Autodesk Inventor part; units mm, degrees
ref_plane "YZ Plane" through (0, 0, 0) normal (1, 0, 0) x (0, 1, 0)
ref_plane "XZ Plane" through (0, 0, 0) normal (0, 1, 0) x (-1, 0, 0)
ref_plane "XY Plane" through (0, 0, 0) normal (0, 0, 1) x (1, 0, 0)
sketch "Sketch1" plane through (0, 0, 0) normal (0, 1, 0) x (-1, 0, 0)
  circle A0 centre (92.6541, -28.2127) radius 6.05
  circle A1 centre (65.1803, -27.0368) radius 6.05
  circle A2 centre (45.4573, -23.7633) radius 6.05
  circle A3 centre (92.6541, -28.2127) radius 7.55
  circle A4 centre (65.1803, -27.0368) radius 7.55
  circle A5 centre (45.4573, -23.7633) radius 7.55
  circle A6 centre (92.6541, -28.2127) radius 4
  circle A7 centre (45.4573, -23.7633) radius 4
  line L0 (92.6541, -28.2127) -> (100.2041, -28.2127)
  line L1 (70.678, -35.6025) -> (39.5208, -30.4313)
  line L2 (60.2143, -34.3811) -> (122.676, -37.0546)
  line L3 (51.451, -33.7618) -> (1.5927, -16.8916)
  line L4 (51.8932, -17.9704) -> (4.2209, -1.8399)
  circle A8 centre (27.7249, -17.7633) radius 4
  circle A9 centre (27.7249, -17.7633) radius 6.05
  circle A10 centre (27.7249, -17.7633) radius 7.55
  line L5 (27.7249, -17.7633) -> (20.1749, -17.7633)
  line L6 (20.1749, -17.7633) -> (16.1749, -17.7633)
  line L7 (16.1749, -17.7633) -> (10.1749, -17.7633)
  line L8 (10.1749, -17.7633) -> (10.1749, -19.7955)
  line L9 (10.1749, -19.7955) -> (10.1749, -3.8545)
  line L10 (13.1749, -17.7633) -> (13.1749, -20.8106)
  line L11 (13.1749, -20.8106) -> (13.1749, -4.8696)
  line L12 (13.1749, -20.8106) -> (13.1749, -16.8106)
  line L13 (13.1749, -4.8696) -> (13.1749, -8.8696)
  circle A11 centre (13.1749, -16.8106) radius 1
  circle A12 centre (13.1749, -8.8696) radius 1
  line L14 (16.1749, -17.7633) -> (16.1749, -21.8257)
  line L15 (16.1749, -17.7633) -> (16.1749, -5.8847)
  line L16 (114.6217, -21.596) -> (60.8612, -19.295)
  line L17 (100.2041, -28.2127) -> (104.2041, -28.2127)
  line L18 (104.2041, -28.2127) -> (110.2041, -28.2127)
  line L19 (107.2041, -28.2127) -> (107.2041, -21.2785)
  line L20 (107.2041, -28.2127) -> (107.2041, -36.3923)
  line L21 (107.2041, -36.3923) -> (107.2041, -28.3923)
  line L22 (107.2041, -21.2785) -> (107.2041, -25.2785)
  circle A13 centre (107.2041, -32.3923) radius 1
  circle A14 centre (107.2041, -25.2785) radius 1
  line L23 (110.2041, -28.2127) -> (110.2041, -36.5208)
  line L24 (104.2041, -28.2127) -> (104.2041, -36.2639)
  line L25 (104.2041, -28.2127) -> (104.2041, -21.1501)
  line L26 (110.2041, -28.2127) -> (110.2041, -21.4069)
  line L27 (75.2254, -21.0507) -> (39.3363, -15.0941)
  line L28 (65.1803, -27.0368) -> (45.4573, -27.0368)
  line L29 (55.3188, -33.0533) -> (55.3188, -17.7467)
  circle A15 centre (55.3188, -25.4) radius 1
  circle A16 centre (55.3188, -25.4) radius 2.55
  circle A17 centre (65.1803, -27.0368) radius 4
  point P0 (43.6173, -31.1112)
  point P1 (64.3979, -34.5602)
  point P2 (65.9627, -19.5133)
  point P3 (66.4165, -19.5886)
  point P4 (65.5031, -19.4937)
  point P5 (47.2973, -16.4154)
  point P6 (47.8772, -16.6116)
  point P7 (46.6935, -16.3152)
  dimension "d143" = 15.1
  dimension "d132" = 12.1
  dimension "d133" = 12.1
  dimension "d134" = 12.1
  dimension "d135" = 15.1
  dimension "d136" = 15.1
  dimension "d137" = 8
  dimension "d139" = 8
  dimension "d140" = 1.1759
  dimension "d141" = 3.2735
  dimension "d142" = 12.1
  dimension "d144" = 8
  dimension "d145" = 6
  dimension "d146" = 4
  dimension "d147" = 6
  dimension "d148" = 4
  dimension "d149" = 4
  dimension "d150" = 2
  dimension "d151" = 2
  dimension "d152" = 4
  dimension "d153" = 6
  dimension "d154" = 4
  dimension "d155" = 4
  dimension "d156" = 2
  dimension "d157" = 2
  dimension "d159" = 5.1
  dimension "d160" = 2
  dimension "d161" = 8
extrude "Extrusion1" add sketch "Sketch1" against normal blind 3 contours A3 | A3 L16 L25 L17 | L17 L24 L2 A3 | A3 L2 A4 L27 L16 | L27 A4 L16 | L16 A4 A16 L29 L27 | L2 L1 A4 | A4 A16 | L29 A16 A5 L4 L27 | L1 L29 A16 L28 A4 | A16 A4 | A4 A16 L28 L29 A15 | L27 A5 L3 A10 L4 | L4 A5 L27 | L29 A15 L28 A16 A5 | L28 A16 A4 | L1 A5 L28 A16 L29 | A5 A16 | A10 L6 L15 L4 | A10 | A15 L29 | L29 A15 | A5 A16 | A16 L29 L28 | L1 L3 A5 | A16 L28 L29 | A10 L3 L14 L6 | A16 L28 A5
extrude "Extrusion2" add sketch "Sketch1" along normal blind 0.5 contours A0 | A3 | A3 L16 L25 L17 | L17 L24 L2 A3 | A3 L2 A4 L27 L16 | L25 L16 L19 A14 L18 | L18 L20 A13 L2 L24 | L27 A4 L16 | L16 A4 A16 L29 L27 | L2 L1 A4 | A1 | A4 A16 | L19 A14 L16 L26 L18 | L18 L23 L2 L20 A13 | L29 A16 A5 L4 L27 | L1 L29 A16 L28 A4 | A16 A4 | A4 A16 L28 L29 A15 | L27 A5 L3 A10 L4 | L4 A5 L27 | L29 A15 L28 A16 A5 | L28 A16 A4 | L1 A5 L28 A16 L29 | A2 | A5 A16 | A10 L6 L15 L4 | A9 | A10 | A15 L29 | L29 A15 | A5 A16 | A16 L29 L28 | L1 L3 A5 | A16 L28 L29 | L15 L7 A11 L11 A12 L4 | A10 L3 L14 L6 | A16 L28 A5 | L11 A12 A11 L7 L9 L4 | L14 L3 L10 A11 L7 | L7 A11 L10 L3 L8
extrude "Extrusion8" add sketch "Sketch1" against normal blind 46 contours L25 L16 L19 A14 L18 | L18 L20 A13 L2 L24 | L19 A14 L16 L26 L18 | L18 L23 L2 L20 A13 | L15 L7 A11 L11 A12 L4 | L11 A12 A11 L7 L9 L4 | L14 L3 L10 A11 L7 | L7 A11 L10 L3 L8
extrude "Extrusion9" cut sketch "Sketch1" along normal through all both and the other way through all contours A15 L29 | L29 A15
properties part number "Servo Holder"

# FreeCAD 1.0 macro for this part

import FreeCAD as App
import Part
import Sketcher
Q = App.Units.Quantity


def add_polygon(sketch, points):
    """Adds a closed chain of lines whose ends are joined by coincident constraints."""
    first, n = sketch.GeometryCount, len(points)
    for a, b in zip(points, points[1:] + points[:1]):
        sketch.addGeometry(Part.LineSegment(App.Vector(*a, 0), App.Vector(*b, 0)), False)
    for i in range(n):
        sketch.addConstraint(Sketcher.Constraint("Coincident", first + i, 2, first + (i + 1) % n, 1))

doc = App.newDocument("Part")
body = doc.addObject("PartDesign::Body", "Body")

sketch1 = body.newObject("Sketcher::SketchObject", "Sketch")
sketch1.AttachmentSupport = (doc.getObject("XZ_Plane"), [""])
sketch1.MapMode = "FlatFace"
add_polygon(sketch1, [(-104, -36), (-104, -21), (-66, -20), (-47, -16), (-16, -6), (-16, -22), (-44, -31), (-64, -35)])
sketch1.addGeometry(Part.Circle(App.Vector(-93, -28, 0), App.Vector(0, 0, 1), 6), False)
sketch1.addGeometry(Part.Circle(App.Vector(-65, -27, 0), App.Vector(0, 0, 1), 6), False)
sketch1.addGeometry(Part.Circle(App.Vector(-45, -24, 0), App.Vector(0, 0, 1), 6), False)
sketch1.addGeometry(Part.Circle(App.Vector(-28, -18, 0), App.Vector(0, 0, 1), 6), False)
sketch1.addConstraint(Sketcher.Constraint("Vertical", 0))
sketch1.addConstraint(Sketcher.Constraint("Vertical", 4))
sketch1.addConstraint(Sketcher.Constraint("Equal", 8, 9))
sketch1.addConstraint(Sketcher.Constraint("Equal", 9, 10))
sketch1.addConstraint(Sketcher.Constraint("Equal", 10, 11))
sketch1.addConstraint(Sketcher.Constraint("Parallel", 3, 5))
sketch1.addConstraint(Sketcher.Constraint("Parallel", 2, 6))
sketch1.addConstraint(Sketcher.Constraint("Parallel", 1, 7))
sketch1.addConstraint(Sketcher.Constraint("Diameter", 8, 12.1))
sketch1.addConstraint(Sketcher.Constraint("DistanceY", 10, 3, 11, 3, 6.0))
sketch1.addConstraint(Sketcher.Constraint("DistanceY", 8, 3, 9, 3, 1.176))
sketch1.addConstraint(Sketcher.Constraint("Angle", 1, Q("2.4508 deg")))
sketch1.addConstraint(Sketcher.Constraint("DistanceY", 9, 3, 10, 3, 3.2735))
sketch1.addConstraint(Sketcher.Constraint("DistanceX", 6, 2, 2, 2, 17.1))
sketch1.addConstraint(Sketcher.Constraint("DistanceY", 4, 2, 4, 1, 15.941))
sketch1.addConstraint(Sketcher.Constraint("DistanceY", 0, 2, -1, 1, 21.15))
sketch1.addConstraint(Sketcher.Constraint("DistanceX", 0, 2, 8, 3, 11.55))
sketch1.addConstraint(Sketcher.Constraint("DistanceY", 10, 3, 1, 2, 4.25))
sketch1.addConstraint(Sketcher.Constraint("DistanceX", 11, 3, 3, 2, 11.55))
sketch1.addConstraint(Sketcher.Constraint("Distance", 5, 28.971))
sketch1.addConstraint(Sketcher.Constraint("DistanceY", 0, 1, 0, 2, 15.1138))
sketch1.addConstraint(Sketcher.Constraint("DistanceX", 8, 3, -1, 1, 92.654))
sketch1.addConstraint(Sketcher.Constraint("DistanceX", 11, 3, -1, 1, 27.725))
sketch1.addConstraint(Sketcher.Constraint("DistanceX", 9, 3, 10, 3, 19.723))
sketch1.addConstraint(Sketcher.Constraint("DistanceX", 1, 2, 2, 2, 18.665))
sketch1.addConstraint(Sketcher.Constraint("DistanceX", 2, 2, 11, 3, 19.573))
sketch1.addConstraint(Sketcher.Constraint("DistanceY", 9, 3, 3, 2, 21.152))
sketch1.addConstraint(Sketcher.Constraint("DistanceX", 9, 3, -1, 1, 65.1803))
pad1 = body.newObject("PartDesign::Pad", "Pad")
pad1.Profile = sketch1
pad1.Length = 3

sketch2 = body.newObject("Sketcher::SketchObject", "Sketch001")
sketch2.AttachmentSupport = (doc.getObject("XZ_Plane"), [""])
sketch2.MapMode = "FlatFace"
add_polygon(sketch2, [(-110.2041, -36.5208), (-110.2041, -21.4069), (-65.962712, -19.51335), (-47.297791, -16.415488), (-10.1749, -3.8545), (-10.1749, -19.7955), (-43.617503, -31.111235), (-64.397767, -34.560162)])
sketch2.addGeometry(Part.Circle(App.Vector(-92.6541, -28.2127, 0), App.Vector(0, 0, 1), 4), False)
sketch2.addGeometry(Part.Circle(App.Vector(-107.2041, -32.3923, 0), App.Vector(0, 0, 1), 1), False)
sketch2.addGeometry(Part.Circle(App.Vector(-107.2041, -25.2785, 0), App.Vector(0, 0, 1), 1), False)
sketch2.addGeometry(Part.Circle(App.Vector(-65.1803, -27.0368, 0), App.Vector(0, 0, 1), 4), False)
sketch2.addGeometry(Part.Circle(App.Vector(-45.4573, -23.7633, 0), App.Vector(0, 0, 1), 4), False)
sketch2.addGeometry(Part.Circle(App.Vector(-27.7249, -17.7633, 0), App.Vector(0, 0, 1), 4), False)
sketch2.addGeometry(Part.Circle(App.Vector(-13.1749, -16.8106, 0), App.Vector(0, 0, 1), 1), False)
sketch2.addGeometry(Part.Circle(App.Vector(-13.1749, -8.8696, 0), App.Vector(0, 0, 1), 1), False)
sketch2.addConstraint(Sketcher.Constraint("Vertical", 0))
sketch2.addConstraint(Sketcher.Constraint("Vertical", 4))
sketch2.addConstraint(Sketcher.Constraint("Diameter", 8, 8.0))
sketch2.addConstraint(Sketcher.Constraint("Diameter", 9, 2.0))
sketch2.addConstraint(Sketcher.Constraint("Diameter", 10, 2.0))
sketch2.addConstraint(Sketcher.Constraint("Diameter", 11, 8.0))
sketch2.addConstraint(Sketcher.Constraint("Diameter", 12, 8.0))
sketch2.addConstraint(Sketcher.Constraint("Diameter", 13, 8.0))
sketch2.addConstraint(Sketcher.Constraint("Diameter", 14, 2.0))
sketch2.addConstraint(Sketcher.Constraint("Diameter", 15, 2.0))
sketch2.addConstraint(Sketcher.Constraint("DistanceY", 12, 3, 13, 3, 6.0))
sketch2.addConstraint(Sketcher.Constraint("DistanceY", 8, 3, 11, 3, 1.176))
sketch2.addConstraint(Sketcher.Constraint("DistanceX", 0, 2, 10, 3, 3.0))
sketch2.addConstraint(Sketcher.Constraint("DistanceX", 0, 2, 9, 3, 3.0))
sketch2.addConstraint(Sketcher.Constraint("DistanceX", 15, 3, 3, 2, 3.0))
sketch2.addConstraint(Sketcher.Constraint("DistanceX", 14, 3, 3, 2, 3.0))
sketch2.addConstraint(Sketcher.Constraint("DistanceY", 11, 3, 12, 3, 3.2735))
sketch2.addConstraint(Sketcher.Constraint("DistanceX", 6, 2, 2, 2, 17.1))
sketch2.addConstraint(Sketcher.Constraint("DistanceY", 0, 1, 0, 2, 15.114))
sketch2.addConstraint(Sketcher.Constraint("DistanceY", 4, 2, 4, 1, 15.941))
sketch2.addConstraint(Sketcher.Constraint("DistanceX", 9, 3, 8, 3, 14.55))
sketch2.addConstraint(Sketcher.Constraint("DistanceX", 13, 3, 14, 3, 14.55))
sketch2.addConstraint(Sketcher.Constraint("DistanceY", 11, 3, 0, 2, 5.63))
sketch2.addConstraint(Sketcher.Constraint("DistanceY", 12, 3, 1, 2, 4.25))
sketch2.addConstraint(Sketcher.Constraint("Distance", 1, 44.282))
sketch2.addConstraint(Sketcher.Constraint("DistanceX", 8, 3, -1, 1, 92.654))
sketch2.addConstraint(Sketcher.Constraint("DistanceX", 13, 3, -1, 1, 27.725))
sketch2.addConstraint(Sketcher.Constraint("DistanceY", 0, 2, -1, 1, 21.407))
sketch2.addConstraint(Sketcher.Constraint("DistanceX", 11, 3, 12, 3, 19.723))
sketch2.addConstraint(Sketcher.Constraint("DistanceY", 9, 3, 12, 3, 8.629))
sketch2.addConstraint(Sketcher.Constraint("DistanceY", 8, 3, 14, 3, 11.402))
sketch2.addConstraint(Sketcher.Constraint("DistanceY", 10, 3, 14, 3, 8.468))
sketch2.addConstraint(Sketcher.Constraint("DistanceY", 14, 3, 15, 3, 7.941))
sketch2.addConstraint(Sketcher.Constraint("DistanceX", 1, 2, 2, 2, 18.665))
sketch2.addConstraint(Sketcher.Constraint("DistanceY", 14, 3, 2, 2, 0.395))
sketch2.addConstraint(Sketcher.Constraint("DistanceY", 15, 3, 3, 2, 5.015))
sketch2.addConstraint(Sketcher.Constraint("DistanceY", 5, 2, 12, 3, 7.348))
sketch2.addConstraint(Sketcher.Constraint("DistanceY", 6, 2, 5, 2, 3.449))
sketch2.addConstraint(Sketcher.Constraint("Distance", 5, 35.3051))
sketch2.addConstraint(Sketcher.Constraint("DistanceX", 11, 3, -1, 1, 65.1803))
pad2 = body.newObject("PartDesign::Pad", "Pad001")
pad2.Profile = sketch2
pad2.Length = 0.5
pad2.Reversed = True

sketch3 = body.newObject("Sketcher::SketchObject", "Sketch002")
sketch3.AttachmentSupport = (doc.getObject("XZ_Plane"), [""])
sketch3.MapMode = "FlatFace"
add_polygon(sketch3, [(-104.2, -21.2), (-104.2, -36.3), (-110.2, -36.5), (-110.2, -21.4)])
sketch3.addGeometry(Part.Circle(App.Vector(-107.2, -25.3, 0), App.Vector(0, 0, 1), 1), False)
sketch3.addGeometry(Part.Circle(App.Vector(-107.2, -32.4, 0), App.Vector(0, 0, 1), 1), False)
add_polygon(sketch3, [(-16.2, -5.9), (-10.2, -3.9), (-10.2, -19.8), (-16.2, -21.8)])
sketch3.addGeometry(Part.Circle(App.Vector(-13.2, -16.8, 0), App.Vector(0, 0, 1), 1), False)
sketch3.addGeometry(Part.Circle(App.Vector(-13.2, -8.9, 0), App.Vector(0, 0, 1), 1), False)
sketch3.addConstraint(Sketcher.Constraint("Vertical", 0))
sketch3.addConstraint(Sketcher.Constraint("Vertical", 2))
sketch3.addConstraint(Sketcher.Constraint("Vertical", 7))
sketch3.addConstraint(Sketcher.Constraint("Vertical", 9))
sketch3.addConstraint(Sketcher.Constraint("Equal", 4, 5))
sketch3.addConstraint(Sketcher.Constraint("Equal", 5, 10))
sketch3.addConstraint(Sketcher.Constraint("Equal", 10, 11))
sketch3.addConstraint(Sketcher.Constraint("Parallel", 1, 3))
sketch3.addConstraint(Sketcher.Constraint("Parallel", 6, 8))
sketch3.addConstraint(Sketcher.Constraint("Vertical", 4, 3, 5, 3))
sketch3.addConstraint(Sketcher.Constraint("Vertical", 10, 3, 11, 3))
sketch3.addConstraint(Sketcher.Constraint("Diameter", 4, 2.0))
sketch3.addConstraint(Sketcher.Constraint("DistanceX", 1, 2, 0, 2, 6.0))
sketch3.addConstraint(Sketcher.Constraint("DistanceX", 8, 2, 7, 2, 6.0))
sketch3.addConstraint(Sketcher.Constraint("DistanceX", 5, 3, 0, 2, 3.0))
sketch3.addConstraint(Sketcher.Constraint("DistanceX", 11, 3, 6, 2, 3.0))
sketch3.addConstraint(Sketcher.Constraint("Angle", 3, Q("2.4508 deg")))
sketch3.addConstraint(Sketcher.Constraint("DistanceY", 2, 1, 2, 2, 15.114))
sketch3.addConstraint(Sketcher.Constraint("DistanceY", 7, 2, 7, 1, 15.941))
sketch3.addConstraint(Sketcher.Constraint("DistanceY", 3, 2, -1, 1, 21.15))
sketch3.addConstraint(Sketcher.Constraint("DistanceX", 4, 3, -1, 1, 107.204))
sketch3.addConstraint(Sketcher.Constraint("DistanceX", 10, 3, -1, 1, 13.175))
sketch3.addConstraint(Sketcher.Constraint("DistanceY", 4, 3, 10, 3, 8.468))
sketch3.addConstraint(Sketcher.Constraint("DistanceY", 10, 3, 11, 3, 7.941))
sketch3.addConstraint(Sketcher.Constraint("DistanceY", 11, 3, 6, 2, 5.015))
sketch3.addConstraint(Sketcher.Constraint("DistanceY", 8, 2, 10, 3, 5.015))
sketch3.addConstraint(Sketcher.Constraint("DistanceY", 4, 3, -1, 1, 25.2785))
sketch3.addConstraint(Sketcher.Constraint("DistanceY", 5, 3, -1, 1, 32.3923))
pad3 = body.newObject("PartDesign::Pad", "Pad002")
pad3.Profile = sketch3
pad3.Length = 46

sketch4 = body.newObject("Sketcher::SketchObject", "Sketch003")
sketch4.AttachmentSupport = (doc.getObject("XZ_Plane"), [""])
sketch4.MapMode = "FlatFace"
sketch4.addGeometry(Part.Circle(App.Vector(-55.3, -25.4, 0), App.Vector(0, 0, 1), 1), False)
sketch4.addConstraint(Sketcher.Constraint("Diameter", 0, 2.0))
sketch4.addConstraint(Sketcher.Constraint("DistanceY", 0, 3, -1, 1, 25.4))
sketch4.addConstraint(Sketcher.Constraint("DistanceX", 0, 3, -1, 1, 55.3188))
pocket1 = body.newObject("PartDesign::Pocket", "Pocket")
pocket1.Profile = sketch4
pocket1.Type = "ThroughAll"
pocket1.Midplane = True

doc.recompute()
